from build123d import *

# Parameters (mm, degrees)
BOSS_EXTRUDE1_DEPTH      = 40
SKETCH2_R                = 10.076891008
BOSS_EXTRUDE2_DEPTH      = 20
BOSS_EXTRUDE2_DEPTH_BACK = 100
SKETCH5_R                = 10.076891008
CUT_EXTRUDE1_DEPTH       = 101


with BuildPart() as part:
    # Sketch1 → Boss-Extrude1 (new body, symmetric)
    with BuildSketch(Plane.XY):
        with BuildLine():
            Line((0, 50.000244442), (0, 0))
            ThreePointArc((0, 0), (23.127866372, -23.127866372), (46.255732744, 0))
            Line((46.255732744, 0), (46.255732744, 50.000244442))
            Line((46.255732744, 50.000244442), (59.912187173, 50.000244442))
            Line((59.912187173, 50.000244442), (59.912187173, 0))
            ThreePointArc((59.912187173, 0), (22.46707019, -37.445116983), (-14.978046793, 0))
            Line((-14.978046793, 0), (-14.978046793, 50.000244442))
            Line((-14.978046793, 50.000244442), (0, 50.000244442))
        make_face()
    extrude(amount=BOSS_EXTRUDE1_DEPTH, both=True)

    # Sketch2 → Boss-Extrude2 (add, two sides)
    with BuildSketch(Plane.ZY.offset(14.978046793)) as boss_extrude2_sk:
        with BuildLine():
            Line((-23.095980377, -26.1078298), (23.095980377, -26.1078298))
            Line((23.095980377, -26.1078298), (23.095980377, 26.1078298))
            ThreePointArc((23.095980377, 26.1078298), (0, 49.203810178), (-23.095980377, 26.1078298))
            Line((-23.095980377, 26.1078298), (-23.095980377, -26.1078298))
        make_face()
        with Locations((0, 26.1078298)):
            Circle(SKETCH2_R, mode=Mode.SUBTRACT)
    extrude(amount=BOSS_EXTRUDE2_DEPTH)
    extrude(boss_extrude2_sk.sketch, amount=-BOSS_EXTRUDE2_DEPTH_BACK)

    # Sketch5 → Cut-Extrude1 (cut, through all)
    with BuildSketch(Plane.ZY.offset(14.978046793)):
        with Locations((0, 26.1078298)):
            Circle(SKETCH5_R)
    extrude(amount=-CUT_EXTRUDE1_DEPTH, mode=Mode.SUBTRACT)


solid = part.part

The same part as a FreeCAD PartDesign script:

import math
import FreeCAD as App
import Part
import Sketcher

V = App.Vector
Q = App.Units.Quantity

doc = App.newDocument("Part")
body = doc.addObject("PartDesign::Body", "Body")

sketch1 = body.newObject("Sketcher::SketchObject", "Sketch")
sketch1.AttachmentSupport = (doc.getObject("XY_Plane"), [""])
sketch1.MapMode = "FlatFace"
sketch1.addGeometry([
    Part.LineSegment(V(0, 0, 0), V(0, 50, 0)),
    Part.LineSegment(V(0, 50, 0), V(-15, 50, 0)),
    Part.LineSegment(V(-15, 50, 0), V(-15, 0, 0)),
    Part.ArcOfCircle(Part.Circle(V(22, 0, 0), V(0, 0, 1), 37), math.radians(180), math.radians(360)),
    Part.LineSegment(V(60, 0, 0), V(60, 50, 0)),
    Part.LineSegment(V(60, 50, 0), V(46, 50, 0)),
    Part.LineSegment(V(46, 50, 0), V(46, 0, 0)),
    Part.ArcOfCircle(Part.Circle(V(23, 0, 0), V(0, 0, 1), 23), math.radians(180), math.radians(360)),
], False)
sketch1.addConstraint([
    Sketcher.Constraint("Coincident", 0, 2, 1, 1),
    Sketcher.Constraint("Coincident", 1, 2, 2, 1),
    Sketcher.Constraint("Tangent", 2, 2, 3, 1),
    Sketcher.Constraint("Tangent", 3, 2, 4, 1),
    Sketcher.Constraint("Coincident", 4, 2, 5, 1),
    Sketcher.Constraint("Coincident", 5, 2, 6, 1),
    Sketcher.Constraint("Tangent", 6, 2, 7, 2),
    Sketcher.Constraint("Tangent", 7, 1, 0, 1),
    Sketcher.Constraint("Vertical", 0),
    Sketcher.Constraint("Horizontal", 1),
    Sketcher.Constraint("Vertical", 2),
    Sketcher.Constraint("Vertical", 4),
    Sketcher.Constraint("Horizontal", 5),
    Sketcher.Constraint("Vertical", 6),
    Sketcher.Constraint("Coincident", 7, 1, -1, 1),
    Sketcher.Constraint("PointOnObject", 3, 3, -1),
    Sketcher.Constraint("Horizontal", 1, 2, 4, 2),
    Sketcher.Constraint("Radius", 3, Q("37.445117 mm")),
    Sketcher.Constraint("Radius", 7, Q("23.127866 mm")),
    Sketcher.Constraint("DistanceX", 1, 2, 1, 1, Q("14.978047 mm")),
    Sketcher.Constraint("DistanceY", 0, 1, 0, 2, Q("50.000244 mm")),
])
pad1 = body.newObject("PartDesign::Pad", "Pad")
pad1.Profile = sketch1
pad1.Length = 80
pad1.Midplane = True

sketch2 = body.newObject("Sketcher::SketchObject", "Sketch001")
sketch2.AttachmentSupport = (doc.getObject("YZ_Plane"), [""])
sketch2.MapMode = "FlatFace"
sketch2.AttachmentOffset = App.Placement(V(0, 0, -14.978047), App.Rotation())
sketch2.addGeometry([
    Part.LineSegment(V(-26, -23, 0), V(-26, 23, 0)),
    Part.LineSegment(V(-26, 23, 0), V(26, 23, 0)),
    Part.ArcOfCircle(Part.Circle(V(26, 0, 0), V(0, 0, 1), 23), math.radians(-90), math.radians(90)),
    Part.LineSegment(V(26, -23, 0), V(-26, -23, 0)),
    Part.Circle(V(26, 0, 0), V(0, 0, 1), 10),
], False)
sketch2.addConstraint([
    Sketcher.Constraint("Coincident", 0, 2, 1, 1),
    Sketcher.Constraint("Tangent", 1, 2, 2, 2),
    Sketcher.Constraint("Tangent", 2, 1, 3, 1),
    Sketcher.Constraint("Coincident", 3, 2, 0, 1),
    Sketcher.Constraint("Vertical", 0),
    Sketcher.Constraint("Horizontal", 1),
    Sketcher.Constraint("Horizontal", 3),
    Sketcher.Constraint("Coincident", 4, 3, 2, 3),
    Sketcher.Constraint("Symmetric", 0, 2, 2, 1, -1, 1),
    Sketcher.Constraint("Radius", 2, Q("23.09598 mm")),
    Sketcher.Constraint("Diameter", 4, Q("20.153782 mm")),
    Sketcher.Constraint("DistanceX", 1, 1, 1, 2, Q("52.21566 mm")),
])
pad2 = body.newObject("PartDesign::Pad", "Pad001")
pad2.Profile = sketch2
pad2.Type = "TwoLengths"
pad2.Length = 20
pad2.Length2 = 100
pad2.Reversed = True

sketch3 = body.newObject("Sketcher::SketchObject", "Sketch002")
sketch3.AttachmentSupport = (doc.getObject("YZ_Plane"), [""])
sketch3.MapMode = "FlatFace"
sketch3.AttachmentOffset = App.Placement(V(0, 0, -14.978047), App.Rotation())
sketch3.addGeometry(Part.Circle(V(26, 0, 0), V(0, 0, 1), 10), False)
sketch3.addConstraint([
    Sketcher.Constraint("PointOnObject", 0, 3, -1),
    Sketcher.Constraint("Diameter", 0, Q("20.153782 mm")),
    Sketcher.Constraint("DistanceX", -1, 1, 0, 3, Q("26.10783 mm")),
])
pocket1 = body.newObject("PartDesign::Pocket", "Pocket")
pocket1.Profile = sketch3
pocket1.Type = "ThroughAll"
pocket1.Reversed = True

doc.recompute()
